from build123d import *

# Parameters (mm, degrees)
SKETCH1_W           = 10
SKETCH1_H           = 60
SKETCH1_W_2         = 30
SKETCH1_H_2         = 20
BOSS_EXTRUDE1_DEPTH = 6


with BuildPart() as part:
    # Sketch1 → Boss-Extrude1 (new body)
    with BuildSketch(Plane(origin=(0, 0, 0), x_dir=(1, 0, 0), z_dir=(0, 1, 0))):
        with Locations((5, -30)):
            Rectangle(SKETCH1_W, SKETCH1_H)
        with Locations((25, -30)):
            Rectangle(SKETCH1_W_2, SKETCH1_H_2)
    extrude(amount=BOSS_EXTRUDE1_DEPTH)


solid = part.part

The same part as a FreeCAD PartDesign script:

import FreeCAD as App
import Part
import Sketcher
from FreeCAD import Vector
Q = App.Units.Quantity

doc = App.newDocument("Part")
body = doc.addObject("PartDesign::Body", "Body")

# Sketch on XZ plane
sketch1 = doc.addObject("Sketcher::SketchObject", "Sketch")
body.addObject(sketch1)
sketch1.AttachmentSupport = (doc.XZ_Plane, [""])
sketch1.MapMode = "FlatFace"
sketch1.addGeometry(Part.LineSegment(Vector(0, 0, 0), Vector(0, 60, 0)), False)
sketch1.addGeometry(Part.LineSegment(Vector(0, 60, 0), Vector(10, 60, 0)), False)
sketch1.addGeometry(Part.LineSegment(Vector(10, 60, 0), Vector(10, 40, 0)), False)
sketch1.addGeometry(Part.LineSegment(Vector(10, 40, 0), Vector(40, 40, 0)), False)
sketch1.addGeometry(Part.LineSegment(Vector(40, 40, 0), Vector(40, 20, 0)), False)
sketch1.addGeometry(Part.LineSegment(Vector(40, 20, 0), Vector(10, 20, 0)), False)
sketch1.addGeometry(Part.LineSegment(Vector(10, 20, 0), Vector(10, 0, 0)), False)
sketch1.addGeometry(Part.LineSegment(Vector(10, 0, 0), Vector(0, 0, 0)), False)
sketch1.addConstraint(Sketcher.Constraint("Coincident", 0, 2, 1, 1))
sketch1.addConstraint(Sketcher.Constraint("Coincident", 1, 2, 2, 1))
sketch1.addConstraint(Sketcher.Constraint("Coincident", 2, 2, 3, 1))
sketch1.addConstraint(Sketcher.Constraint("Coincident", 3, 2, 4, 1))
sketch1.addConstraint(Sketcher.Constraint("Coincident", 4, 2, 5, 1))
sketch1.addConstraint(Sketcher.Constraint("Coincident", 5, 2, 6, 1))
sketch1.addConstraint(Sketcher.Constraint("Coincident", 6, 2, 7, 1))
sketch1.addConstraint(Sketcher.Constraint("Coincident", 7, 2, 0, 1))
sketch1.addConstraint(Sketcher.Constraint("Vertical", 0))
sketch1.addConstraint(Sketcher.Constraint("Horizontal", 1))
sketch1.addConstraint(Sketcher.Constraint("Vertical", 2))
sketch1.addConstraint(Sketcher.Constraint("Horizontal", 3))
sketch1.addConstraint(Sketcher.Constraint("Vertical", 4))
sketch1.addConstraint(Sketcher.Constraint("Horizontal", 5))
sketch1.addConstraint(Sketcher.Constraint("Vertical", 6))
sketch1.addConstraint(Sketcher.Constraint("Horizontal", 7))
sketch1.addConstraint(Sketcher.Constraint("Coincident", 7, 2, -1, 1))
sketch1.addConstraint(Sketcher.Constraint("Vertical", 2, 2, 5, 2))
sketch1.addConstraint(Sketcher.Constraint("Equal", 2, 4))
sketch1.addConstraint(Sketcher.Constraint("Equal", 4, 6))
sketch1.addConstraint(Sketcher.Constraint("DistanceX", 1, 1, 1, 2, Q("10 mm")))
sketch1.addConstraint(Sketcher.Constraint("DistanceX", 3, 1, 3, 2, Q("30 mm")))
sketch1.addConstraint(Sketcher.Constraint("DistanceY", 0, 1, 0, 2, Q("60 mm")))
pad1 = doc.addObject("PartDesign::Pad", "Pad")
body.addObject(pad1)
pad1.Profile = sketch1
pad1.Length = 6
pad1.Reversed = True

doc.recompute()
